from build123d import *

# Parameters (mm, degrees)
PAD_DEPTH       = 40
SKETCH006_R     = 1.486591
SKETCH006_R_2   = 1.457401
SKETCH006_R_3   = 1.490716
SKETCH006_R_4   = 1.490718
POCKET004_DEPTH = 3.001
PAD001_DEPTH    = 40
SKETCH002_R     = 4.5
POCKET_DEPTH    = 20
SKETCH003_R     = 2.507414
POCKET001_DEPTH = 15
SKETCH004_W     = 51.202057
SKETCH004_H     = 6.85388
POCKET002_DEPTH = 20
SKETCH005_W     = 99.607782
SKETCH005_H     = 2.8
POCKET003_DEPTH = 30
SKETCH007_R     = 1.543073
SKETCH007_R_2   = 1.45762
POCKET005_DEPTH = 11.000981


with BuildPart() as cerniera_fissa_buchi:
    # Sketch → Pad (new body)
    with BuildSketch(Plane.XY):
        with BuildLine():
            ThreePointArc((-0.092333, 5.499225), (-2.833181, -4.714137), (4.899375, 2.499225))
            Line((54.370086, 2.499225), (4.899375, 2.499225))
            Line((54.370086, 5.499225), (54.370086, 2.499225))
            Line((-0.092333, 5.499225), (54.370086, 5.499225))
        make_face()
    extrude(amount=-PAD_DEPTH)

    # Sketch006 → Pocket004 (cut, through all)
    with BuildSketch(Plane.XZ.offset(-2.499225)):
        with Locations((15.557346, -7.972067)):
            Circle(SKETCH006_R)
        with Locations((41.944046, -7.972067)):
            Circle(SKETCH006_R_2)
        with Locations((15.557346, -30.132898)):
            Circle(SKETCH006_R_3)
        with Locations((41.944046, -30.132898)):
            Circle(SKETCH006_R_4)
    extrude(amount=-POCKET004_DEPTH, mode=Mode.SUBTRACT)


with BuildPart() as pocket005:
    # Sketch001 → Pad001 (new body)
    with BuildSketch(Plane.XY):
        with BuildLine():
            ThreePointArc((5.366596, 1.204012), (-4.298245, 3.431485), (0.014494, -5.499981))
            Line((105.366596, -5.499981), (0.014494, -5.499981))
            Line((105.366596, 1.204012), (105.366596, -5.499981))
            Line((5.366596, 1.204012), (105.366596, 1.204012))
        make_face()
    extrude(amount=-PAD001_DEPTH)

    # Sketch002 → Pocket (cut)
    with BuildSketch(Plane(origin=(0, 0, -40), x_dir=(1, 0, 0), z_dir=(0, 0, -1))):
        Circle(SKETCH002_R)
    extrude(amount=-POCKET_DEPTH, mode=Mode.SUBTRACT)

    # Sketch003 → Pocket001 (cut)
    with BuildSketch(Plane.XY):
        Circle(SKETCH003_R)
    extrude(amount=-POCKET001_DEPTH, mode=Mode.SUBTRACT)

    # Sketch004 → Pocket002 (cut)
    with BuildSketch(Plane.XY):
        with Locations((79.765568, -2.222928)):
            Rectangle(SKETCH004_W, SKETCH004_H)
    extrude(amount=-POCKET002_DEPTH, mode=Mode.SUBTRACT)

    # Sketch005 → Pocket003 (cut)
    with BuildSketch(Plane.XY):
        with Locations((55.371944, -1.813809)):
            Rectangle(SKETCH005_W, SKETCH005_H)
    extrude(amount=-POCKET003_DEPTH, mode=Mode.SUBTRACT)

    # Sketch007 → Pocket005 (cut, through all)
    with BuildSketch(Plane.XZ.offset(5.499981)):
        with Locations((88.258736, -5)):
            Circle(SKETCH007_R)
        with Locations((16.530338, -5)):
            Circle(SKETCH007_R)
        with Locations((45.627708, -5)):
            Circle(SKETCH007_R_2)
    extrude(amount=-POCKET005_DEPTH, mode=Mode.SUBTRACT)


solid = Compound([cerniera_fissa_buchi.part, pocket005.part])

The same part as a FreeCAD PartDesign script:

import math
import FreeCAD as App
import Part
import Sketcher
Q = App.Units.Quantity

doc = App.newDocument("Part")
body = doc.addObject("PartDesign::Body", "Body")

# Sketch on XY plane
sketch1 = doc.addObject("Sketcher::SketchObject", "Sketch")
body.addObject(sketch1)
sketch1.AttachmentSupport = (doc.XY_Plane, [""])
sketch1.MapMode = "FlatFace"
sketch1.addGeometry([
    Part.ArcOfCircle(Part.Circle(App.Vector(0, 0, 0), App.Vector(0, 0, 1), 5.5), math.radians(90.961916), math.radians(387.026628)),
    Part.LineSegment(App.Vector(4.899375, 2.499225, 0), App.Vector(54.370086, 2.499225, 0)),
    Part.LineSegment(App.Vector(54.370086, 2.499225, 0), App.Vector(54.370086, 5.499225, 0)),
    Part.LineSegment(App.Vector(54.370086, 5.499225, 0), App.Vector(-0.092333, 5.499225, 0)),
], False)
sketch1.addConstraint([
    Sketcher.Constraint("Coincident", 0, 2, 1, 1),
    Sketcher.Constraint("Coincident", 1, 2, 2, 1),
    Sketcher.Constraint("Coincident", 2, 2, 3, 1),
    Sketcher.Constraint("Coincident", 3, 2, 0, 1),
    Sketcher.Constraint("Horizontal", 1),
    Sketcher.Constraint("Vertical", 2),
    Sketcher.Constraint("Horizontal", 3),
    Sketcher.Constraint("Coincident", 0, 3, -1, 1),
    Sketcher.Constraint("Radius", 0, Q("5.5 mm")),
    Sketcher.Constraint("DistanceY", 2, 1, 2, 2, Q("3 mm")),
    Sketcher.Constraint("DistanceX", 1, 1, 1, 2, Q("49.470711 mm")),
    Sketcher.Constraint("DistanceX", 3, 2, 3, 1, Q("54.462419 mm")),
])
pad1 = doc.addObject("PartDesign::Pad", "Pad")
body.addObject(pad1)
pad1.Profile = sketch1
pad1.Length = 40
pad1.Reversed = True

# Sketch on XZ plane
sketch2 = doc.addObject("Sketcher::SketchObject", "Sketch001")
body.addObject(sketch2)
sketch2.AttachmentSupport = (doc.XZ_Plane, [""])
sketch2.MapMode = "FlatFace"
sketch2.AttachmentOffset = App.Placement(App.Vector(0, 0, -2.499225), App.Rotation())
sketch2.addGeometry([
    Part.Circle(App.Vector(15.557346, -7.972067, 0), App.Vector(0, 0, 1), 1.486591),
    Part.Circle(App.Vector(41.944046, -7.972067, 0), App.Vector(0, 0, 1), 1.457401),
    Part.Circle(App.Vector(15.557346, -30.132898, 0), App.Vector(0, 0, 1), 1.490716),
    Part.Circle(App.Vector(41.944046, -30.132898, 0), App.Vector(0, 0, 1), 1.490718),
], False)
sketch2.addConstraint([
    Sketcher.Constraint("Horizontal", 0, 3, 1, 3),
    Sketcher.Constraint("Horizontal", 2, 3, 3, 3),
    Sketcher.Constraint("Vertical", 0, 3, 2, 3),
    Sketcher.Constraint("Vertical", 1, 3, 3, 3),
    Sketcher.Constraint("Diameter", 1, Q("2.914802 mm")),
    Sketcher.Constraint("Diameter", 0, Q("2.973182 mm")),
    Sketcher.Constraint("Diameter", 2, Q("2.981432 mm")),
    Sketcher.Constraint("Diameter", 3, Q("2.981436 mm")),
    Sketcher.Constraint("DistanceY", 2, 3, -1, 1, Q("30.132898 mm")),
    Sketcher.Constraint("DistanceX", 0, 3, 1, 3, Q("26.3867 mm")),
    Sketcher.Constraint("DistanceY", 2, 3, 0, 3, Q("22.160831 mm")),
    Sketcher.Constraint("DistanceX", -1, 1, 0, 3, Q("15.557346 mm")),
])
pocket1 = doc.addObject("PartDesign::Pocket", "Pocket")
body.addObject(pocket1)
pocket1.Profile = sketch2
pocket1.Type = "ThroughAll"
body2 = doc.addObject("PartDesign::Body", "Body001")

# Sketch on XY plane
sketch3 = doc.addObject("Sketcher::SketchObject", "Sketch002")
body2.addObject(sketch3)
sketch3.AttachmentSupport = (doc.getObject("XY_Plane001"), [""])
sketch3.MapMode = "FlatFace"
sketch3.addGeometry([
    Part.ArcOfCircle(Part.Circle(App.Vector(0, 0, 0), App.Vector(0, 0, 1), 5.5), math.radians(12.645097), math.radians(270.150992)),
    Part.LineSegment(App.Vector(0.014494, -5.499981, 0), App.Vector(105.366596, -5.499981, 0)),
    Part.LineSegment(App.Vector(105.366596, -5.499981, 0), App.Vector(105.366596, 1.204012, 0)),
    Part.LineSegment(App.Vector(105.366596, 1.204012, 0), App.Vector(5.366596, 1.204012, 0)),
], False)
sketch3.addConstraint([
    Sketcher.Constraint("Coincident", 0, 2, 1, 1),
    Sketcher.Constraint("Coincident", 1, 2, 2, 1),
    Sketcher.Constraint("Coincident", 2, 2, 3, 1),
    Sketcher.Constraint("Coincident", 3, 2, 0, 1),
    Sketcher.Constraint("Horizontal", 1),
    Sketcher.Constraint("Vertical", 2),
    Sketcher.Constraint("Horizontal", 3),
    Sketcher.Constraint("Coincident", 0, 3, -1, 1),
    Sketcher.Constraint("Radius", 0, Q("5.5 mm")),
    Sketcher.Constraint("DistanceX", 3, 2, 3, 1, Q("100 mm")),
    Sketcher.Constraint("DistanceX", 1, 1, 1, 2, Q("105.352102 mm")),
    Sketcher.Constraint("DistanceY", 2, 1, 2, 2, Q("6.703993 mm")),
])
pad2 = doc.addObject("PartDesign::Pad", "Pad001")
body2.addObject(pad2)
pad2.Profile = sketch3
pad2.Length = 40
pad2.Reversed = True

# Sketch on XY plane
sketch4 = doc.addObject("Sketcher::SketchObject", "Sketch003")
body2.addObject(sketch4)
sketch4.AttachmentSupport = (doc.getObject("XY_Plane001"), [""])
sketch4.MapMode = "FlatFace"
sketch4.AttachmentOffset = App.Placement(App.Vector(0, 0, -40), App.Rotation())
sketch4.addGeometry(Part.Circle(App.Vector(0, 0, 0), App.Vector(0, 0, 1), 4.5), False)
sketch4.addConstraint([
    Sketcher.Constraint("Coincident", 0, 3, -1, 1),
    Sketcher.Constraint("Diameter", 0, Q("9 mm")),
])
pocket2 = doc.addObject("PartDesign::Pocket", "Pocket001")
body2.addObject(pocket2)
pocket2.Profile = sketch4
pocket2.Length = 20
pocket2.Reversed = True

# Sketch on XY plane
sketch5 = doc.addObject("Sketcher::SketchObject", "Sketch004")
body2.addObject(sketch5)
sketch5.AttachmentSupport = (doc.getObject("XY_Plane001"), [""])
sketch5.MapMode = "FlatFace"
sketch5.addGeometry(Part.Circle(App.Vector(0, 0, 0), App.Vector(0, 0, 1), 2.507414), False)
sketch5.addConstraint([
    Sketcher.Constraint("Coincident", 0, 3, -1, 1),
    Sketcher.Constraint("Diameter", 0, Q("5.014828 mm")),
])
pocket3 = doc.addObject("PartDesign::Pocket", "Pocket002")
body2.addObject(pocket3)
pocket3.Profile = sketch5
pocket3.Length = 15

# Sketch on XY plane
sketch6 = doc.addObject("Sketcher::SketchObject", "Sketch005")
body2.addObject(sketch6)
sketch6.AttachmentSupport = (doc.getObject("XY_Plane001"), [""])
sketch6.MapMode = "FlatFace"
sketch6.addGeometry([
    Part.LineSegment(App.Vector(54.164539, 1.204012, 0), App.Vector(54.164539, -5.649868, 0)),
    Part.LineSegment(App.Vector(54.164539, -5.649868, 0), App.Vector(105.366596, -5.649868, 0)),
    Part.LineSegment(App.Vector(105.366596, -5.649868, 0), App.Vector(105.366596, 1.204012, 0)),
    Part.LineSegment(App.Vector(105.366596, 1.204012, 0), App.Vector(54.164539, 1.204012, 0)),
], False)
sketch6.addConstraint([
    Sketcher.Constraint("Coincident", 0, 2, 1, 1),
    Sketcher.Constraint("Coincident", 1, 2, 2, 1),
    Sketcher.Constraint("Coincident", 2, 2, 3, 1),
    Sketcher.Constraint("Coincident", 3, 2, 0, 1),
    Sketcher.Constraint("Vertical", 0),
    Sketcher.Constraint("Horizontal", 1),
    Sketcher.Constraint("Vertical", 2),
    Sketcher.Constraint("Horizontal", 3),
    Sketcher.Constraint("DistanceY", 0, 2, 0, 1, Q("6.85388 mm")),
    Sketcher.Constraint("DistanceX", 1, 1, 1, 2, Q("51.202057 mm")),
    Sketcher.Constraint("DistanceX", -1, 1, 0, 2, Q("54.164539 mm")),
    Sketcher.Constraint("DistanceY", 0, 2, -1, 1, Q("5.649868 mm")),
])
pocket4 = doc.addObject("PartDesign::Pocket", "Pocket003")
body2.addObject(pocket4)
pocket4.Profile = sketch6
pocket4.Length = 20

# Sketch on XY plane
sketch7 = doc.addObject("Sketcher::SketchObject", "Sketch006")
body2.addObject(sketch7)
sketch7.AttachmentSupport = (doc.getObject("XY_Plane001"), [""])
sketch7.MapMode = "FlatFace"
sketch7.addGeometry([
    Part.LineSegment(App.Vector(5.568053, -0.413809, 0), App.Vector(5.568053, -3.213809, 0)),
    Part.LineSegment(App.Vector(5.568053, -3.213809, 0), App.Vector(105.175835, -3.213809, 0)),
    Part.LineSegment(App.Vector(105.175835, -3.213809, 0), App.Vector(105.175835, -0.413809, 0)),
    Part.LineSegment(App.Vector(105.175835, -0.413809, 0), App.Vector(5.568053, -0.413809, 0)),
], False)
sketch7.addConstraint([
    Sketcher.Constraint("Coincident", 0, 2, 1, 1),
    Sketcher.Constraint("Coincident", 1, 2, 2, 1),
    Sketcher.Constraint("Coincident", 2, 2, 3, 1),
    Sketcher.Constraint("Coincident", 3, 2, 0, 1),
    Sketcher.Constraint("Vertical", 0),
    Sketcher.Constraint("Horizontal", 1),
    Sketcher.Constraint("Vertical", 2),
    Sketcher.Constraint("Horizontal", 3),
    Sketcher.Constraint("DistanceY", 0, 2, 0, 1, Q("2.8 mm")),
    Sketcher.Constraint("DistanceX", 1, 1, 1, 2, Q("99.607782 mm")),
    Sketcher.Constraint("DistanceY", 0, 2, -1, 1, Q("3.213809 mm")),
    Sketcher.Constraint("DistanceX", -1, 1, 0, 2, Q("5.568053 mm")),
])
pocket5 = doc.addObject("PartDesign::Pocket", "Pocket004")
body2.addObject(pocket5)
pocket5.Profile = sketch7
pocket5.Length = 30

# Sketch on XZ plane
sketch8 = doc.addObject("Sketcher::SketchObject", "Sketch007")
body2.addObject(sketch8)
sketch8.AttachmentSupport = (doc.getObject("XZ_Plane001"), [""])
sketch8.MapMode = "FlatFace"
sketch8.AttachmentOffset = App.Placement(App.Vector(0, 0, 5.499981), App.Rotation())
sketch8.addGeometry([
    Part.Circle(App.Vector(88.258736, -5, 0), App.Vector(0, 0, 1), 1.543073),
    Part.Circle(App.Vector(16.530338, -5, 0), App.Vector(0, 0, 1), 1.543073),
    Part.Circle(App.Vector(45.627708, -5, 0), App.Vector(0, 0, 1), 1.45762),
], False)
sketch8.addConstraint([
    Sketcher.Constraint("Equal", 0, 1),
    Sketcher.Constraint("Horizontal", 0, 3, 1, 3),
    Sketcher.Constraint("Horizontal", 1, 3, 2, 3),
    Sketcher.Constraint("DistanceY", 0, 3, -1, 1, Q("5 mm")),
    Sketcher.Constraint("Diameter", 2, Q("2.91524 mm")),
    Sketcher.Constraint("Diameter", 0, Q("3.086146 mm")),
    Sketcher.Constraint("DistanceX", 1, 3, 0, 3, Q("71.728398 mm")),
    Sketcher.Constraint("DistanceX", -1, 1, 1, 3, Q("16.530338 mm")),
    Sketcher.Constraint("DistanceX", 1, 3, 2, 3, Q("29.09737 mm")),
])
pocket6 = doc.addObject("PartDesign::Pocket", "Pocket005")
body2.addObject(pocket6)
pocket6.Profile = sketch8
pocket6.Type = "ThroughAll"

doc.recompute()
